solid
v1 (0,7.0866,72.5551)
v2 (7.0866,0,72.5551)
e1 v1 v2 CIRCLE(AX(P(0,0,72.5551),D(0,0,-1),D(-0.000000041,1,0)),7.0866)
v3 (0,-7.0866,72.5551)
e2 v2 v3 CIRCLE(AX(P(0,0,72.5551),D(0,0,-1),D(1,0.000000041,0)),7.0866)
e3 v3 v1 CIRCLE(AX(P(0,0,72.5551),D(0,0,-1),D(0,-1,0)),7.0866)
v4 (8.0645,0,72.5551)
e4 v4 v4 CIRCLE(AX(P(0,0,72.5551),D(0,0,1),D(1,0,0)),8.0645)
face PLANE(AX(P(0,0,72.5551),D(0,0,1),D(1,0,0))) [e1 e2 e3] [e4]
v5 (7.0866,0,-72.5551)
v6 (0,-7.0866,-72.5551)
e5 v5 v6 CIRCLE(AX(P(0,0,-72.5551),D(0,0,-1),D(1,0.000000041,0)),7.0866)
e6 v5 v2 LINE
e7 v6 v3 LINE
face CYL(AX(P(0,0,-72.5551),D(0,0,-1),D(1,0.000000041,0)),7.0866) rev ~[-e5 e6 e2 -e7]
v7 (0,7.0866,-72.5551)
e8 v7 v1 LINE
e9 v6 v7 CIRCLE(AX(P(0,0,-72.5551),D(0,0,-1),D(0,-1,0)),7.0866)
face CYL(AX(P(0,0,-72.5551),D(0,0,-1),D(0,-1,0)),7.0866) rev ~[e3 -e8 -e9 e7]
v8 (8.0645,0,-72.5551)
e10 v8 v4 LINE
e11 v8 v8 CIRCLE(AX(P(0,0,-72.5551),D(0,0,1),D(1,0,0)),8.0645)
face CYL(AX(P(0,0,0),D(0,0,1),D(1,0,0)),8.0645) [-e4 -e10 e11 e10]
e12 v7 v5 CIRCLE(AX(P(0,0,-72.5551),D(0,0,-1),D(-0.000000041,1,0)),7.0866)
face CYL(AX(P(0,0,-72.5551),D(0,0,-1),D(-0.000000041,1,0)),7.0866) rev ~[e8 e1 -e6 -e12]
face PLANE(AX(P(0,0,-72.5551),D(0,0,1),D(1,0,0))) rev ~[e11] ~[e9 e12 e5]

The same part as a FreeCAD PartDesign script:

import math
import FreeCAD as App
import Part
import Sketcher
Q = App.Units.Quantity

doc = App.newDocument("Part")
body = doc.addObject("PartDesign::Body", "Body")

# Sketch on XY plane
sketch1 = body.newObject("Sketcher::SketchObject", "Sketch")
sketch1.AttachmentSupport = (doc.getObject("XY_Plane"), [""])
sketch1.MapMode = "FlatFace"
sketch1.addGeometry(Part.Circle(App.Vector(0, 0, 0), App.Vector(0, 0, 1), 8), False)
sketch1.addConstraint(Sketcher.Constraint("Coincident", 0, 3, -1, 1))
sketch1.addConstraint(Sketcher.Constraint("Diameter", 0, Q("0.635 in")))
pad1 = body.newObject("PartDesign::Pad", "Pad")
pad1.Profile = sketch1
pad1.Length = Q("2.8565 in")

# Sketch on XY plane
sketch2 = body.newObject("Sketcher::SketchObject", "Sketch001")
sketch2.AttachmentSupport = (doc.getObject("XY_Plane"), [""])
sketch2.MapMode = "FlatFace"
sketch2.addGeometry(Part.Circle(App.Vector(0, 0, 0), App.Vector(0, 0, 1), 8), False)
sketch2.addConstraint(Sketcher.Constraint("Coincident", 0, 3, -1, 1))
sketch2.addConstraint(Sketcher.Constraint("Diameter", 0, Q("0.635 in")))
pad2 = body.newObject("PartDesign::Pad", "Pad001")
pad2.Profile = sketch2
pad2.Length = Q("2.8565 in")
pad2.Reversed = True

# Sketch on XY plane
sketch3 = body.newObject("Sketcher::SketchObject", "Sketch002")
sketch3.AttachmentSupport = (doc.getObject("XY_Plane"), [""])
sketch3.MapMode = "FlatFace"
sketch3.addGeometry(Part.Circle(App.Vector(0, 0, 0), App.Vector(0, 0, 1), 8), False)
sketch3.addConstraint(Sketcher.Constraint("Coincident", 0, 3, -1, 1))
sketch3.addConstraint(Sketcher.Constraint("Diameter", 0, Q("0.635 in")))
pad3 = body.newObject("PartDesign::Pad", "Pad002")
pad3.Profile = sketch3
pad3.Length = Q("1 in")

# Sketch on XY plane
sketch4 = body.newObject("Sketcher::SketchObject", "Sketch003")
sketch4.AttachmentSupport = (doc.getObject("XY_Plane"), [""])
sketch4.MapMode = "FlatFace"
sketch4.AttachmentOffset = App.Placement(App.Vector(0, 0, -2.8565 * 25.4), App.Rotation())
sketch4.addGeometry(Part.ArcOfCircle(Part.Circle(App.Vector(0, 0, 0), App.Vector(0, 0, 1), 7), math.radians(90), math.radians(270)), False)
sketch4.addGeometry(Part.ArcOfCircle(Part.Circle(App.Vector(0, 0, 0), App.Vector(0, 0, 1), 7), math.radians(0), math.radians(90)), False)
sketch4.addGeometry(Part.ArcOfCircle(Part.Circle(App.Vector(0, 0, 0), App.Vector(0, 0, 1), 7), math.radians(-90), math.radians(0)), False)
sketch4.addConstraint(Sketcher.Constraint("Tangent", 0, 1, 1, 2))
sketch4.addConstraint(Sketcher.Constraint("Tangent", 1, 1, 2, 2))
sketch4.addConstraint(Sketcher.Constraint("Tangent", 2, 1, 0, 2))
sketch4.addConstraint(Sketcher.Constraint("Coincident", 0, 3, -1, 1))
sketch4.addConstraint(Sketcher.Constraint("PointOnObject", 0, 1, -2))
sketch4.addConstraint(Sketcher.Constraint("PointOnObject", 1, 1, -1))
sketch4.addConstraint(Sketcher.Constraint("PointOnObject", 2, 1, -2))
sketch4.addConstraint(Sketcher.Constraint("Radius", 0, Q("0.279 in")))
pocket1 = body.newObject("PartDesign::Pocket", "Pocket")
pocket1.Profile = sketch4
pocket1.Length = Q("5.713 in")
pocket1.Reversed = True

doc.recompute()
